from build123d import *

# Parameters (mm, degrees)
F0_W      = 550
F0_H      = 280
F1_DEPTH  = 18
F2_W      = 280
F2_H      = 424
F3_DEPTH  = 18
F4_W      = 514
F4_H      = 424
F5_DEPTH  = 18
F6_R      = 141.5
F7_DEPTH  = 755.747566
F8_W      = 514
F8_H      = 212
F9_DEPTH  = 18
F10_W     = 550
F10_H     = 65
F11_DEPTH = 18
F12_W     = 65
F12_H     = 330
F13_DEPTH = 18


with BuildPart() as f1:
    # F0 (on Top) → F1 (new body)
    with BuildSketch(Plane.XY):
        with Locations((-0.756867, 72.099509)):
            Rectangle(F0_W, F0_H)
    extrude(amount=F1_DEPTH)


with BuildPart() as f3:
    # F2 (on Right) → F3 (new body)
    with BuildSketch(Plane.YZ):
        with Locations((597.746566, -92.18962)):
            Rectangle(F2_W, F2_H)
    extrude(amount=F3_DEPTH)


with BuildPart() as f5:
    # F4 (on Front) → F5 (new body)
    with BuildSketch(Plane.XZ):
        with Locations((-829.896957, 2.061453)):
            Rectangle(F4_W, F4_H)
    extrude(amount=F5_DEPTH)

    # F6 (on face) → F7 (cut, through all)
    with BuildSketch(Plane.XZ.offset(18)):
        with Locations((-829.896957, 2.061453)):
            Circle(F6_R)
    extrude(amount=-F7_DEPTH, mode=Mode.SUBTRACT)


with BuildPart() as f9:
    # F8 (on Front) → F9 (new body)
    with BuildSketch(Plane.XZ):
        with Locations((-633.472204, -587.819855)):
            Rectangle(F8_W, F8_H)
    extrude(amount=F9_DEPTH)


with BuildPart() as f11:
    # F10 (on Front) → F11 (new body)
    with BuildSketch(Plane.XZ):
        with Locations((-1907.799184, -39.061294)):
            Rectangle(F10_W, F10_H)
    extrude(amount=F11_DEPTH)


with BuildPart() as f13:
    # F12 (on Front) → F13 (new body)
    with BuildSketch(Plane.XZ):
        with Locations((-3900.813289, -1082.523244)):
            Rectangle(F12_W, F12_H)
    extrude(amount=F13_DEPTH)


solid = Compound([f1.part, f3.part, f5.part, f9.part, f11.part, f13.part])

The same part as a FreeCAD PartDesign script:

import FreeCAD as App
import Part
import Sketcher

V = App.Vector

doc = App.newDocument("Part")
body = doc.addObject("PartDesign::Body", "Body")

sketch1 = body.newObject("Sketcher::SketchObject", "Sketch")
sketch1.AttachmentSupport = (doc.getObject("XY_Plane"), [""])
sketch1.MapMode = "FlatFace"
sketch1.addGeometry([
    Part.LineSegment(V(-276, 212, 0), V(-276, -68, 0)),
    Part.LineSegment(V(-276, -68, 0), V(274, -68, 0)),
    Part.LineSegment(V(274, -68, 0), V(274, 212, 0)),
    Part.LineSegment(V(274, 212, 0), V(-276, 212, 0)),
], False)
sketch1.addConstraint([
    Sketcher.Constraint("Coincident", 0, 2, 1, 1),
    Sketcher.Constraint("Coincident", 1, 2, 2, 1),
    Sketcher.Constraint("Coincident", 2, 2, 3, 1),
    Sketcher.Constraint("Coincident", 3, 2, 0, 1),
    Sketcher.Constraint("Vertical", 0),
    Sketcher.Constraint("Horizontal", 1),
    Sketcher.Constraint("Vertical", 2),
    Sketcher.Constraint("Horizontal", 3),
    Sketcher.Constraint("DistanceX", 1, 1, 1, 2, 550.0),
    Sketcher.Constraint("DistanceY", 0, 2, 0, 1, 280.0),
    Sketcher.Constraint("DistanceY", 0, 2, -1, 1, 67.900491),
    Sketcher.Constraint("DistanceX", 0, 2, -1, 1, 275.756867),
])
pad1 = body.newObject("PartDesign::Pad", "Pad")
pad1.Profile = sketch1
pad1.Length = 18
body2 = doc.addObject("PartDesign::Body", "Body001")

sketch2 = body2.newObject("Sketcher::SketchObject", "Sketch001")
sketch2.AttachmentSupport = (doc.getObject("YZ_Plane001"), [""])
sketch2.MapMode = "FlatFace"
sketch2.addGeometry([
    Part.LineSegment(V(458, 120, 0), V(458, -304, 0)),
    Part.LineSegment(V(458, -304, 0), V(738, -304, 0)),
    Part.LineSegment(V(738, -304, 0), V(738, 120, 0)),
    Part.LineSegment(V(738, 120, 0), V(458, 120, 0)),
], False)
sketch2.addConstraint([
    Sketcher.Constraint("Coincident", 0, 2, 1, 1),
    Sketcher.Constraint("Coincident", 1, 2, 2, 1),
    Sketcher.Constraint("Coincident", 2, 2, 3, 1),
    Sketcher.Constraint("Coincident", 3, 2, 0, 1),
    Sketcher.Constraint("Vertical", 0),
    Sketcher.Constraint("Horizontal", 1),
    Sketcher.Constraint("Vertical", 2),
    Sketcher.Constraint("Horizontal", 3),
    Sketcher.Constraint("DistanceX", 1, 1, 1, 2, 280.0),
    Sketcher.Constraint("DistanceY", 0, 2, 0, 1, 424.0),
    Sketcher.Constraint("DistanceY", 0, 2, -1, 1, 304.18962),
    Sketcher.Constraint("DistanceX", -1, 1, 0, 2, 457.746566),
])
pad2 = body2.newObject("PartDesign::Pad", "Pad001")
pad2.Profile = sketch2
pad2.Length = 18
body3 = doc.addObject("PartDesign::Body", "Body002")

sketch3 = body3.newObject("Sketcher::SketchObject", "Sketch002")
sketch3.AttachmentSupport = (doc.getObject("XZ_Plane002"), [""])
sketch3.MapMode = "FlatFace"
sketch3.addGeometry([
    Part.LineSegment(V(-1087, 214, 0), V(-1087, -210, 0)),
    Part.LineSegment(V(-1087, -210, 0), V(-573, -210, 0)),
    Part.LineSegment(V(-573, -210, 0), V(-573, 214, 0)),
    Part.LineSegment(V(-573, 214, 0), V(-1087, 214, 0)),
], False)
sketch3.addConstraint([
    Sketcher.Constraint("Coincident", 0, 2, 1, 1),
    Sketcher.Constraint("Coincident", 1, 2, 2, 1),
    Sketcher.Constraint("Coincident", 2, 2, 3, 1),
    Sketcher.Constraint("Coincident", 3, 2, 0, 1),
    Sketcher.Constraint("Vertical", 0),
    Sketcher.Constraint("Horizontal", 1),
    Sketcher.Constraint("Vertical", 2),
    Sketcher.Constraint("Horizontal", 3),
    Sketcher.Constraint("DistanceX", 1, 1, 1, 2, 514.0),
    Sketcher.Constraint("DistanceY", 0, 2, 0, 1, 424.0),
    Sketcher.Constraint("DistanceX", 0, 2, -1, 1, 1086.896957),
    Sketcher.Constraint("DistanceY", 0, 2, -1, 1, 209.938547),
])
pad3 = body3.newObject("PartDesign::Pad", "Pad002")
pad3.Profile = sketch3
pad3.Length = 18

sketch4 = body3.newObject("Sketcher::SketchObject", "Sketch003")
sketch4.AttachmentSupport = (doc.getObject("XZ_Plane002"), [""])
sketch4.MapMode = "FlatFace"
sketch4.AttachmentOffset = App.Placement(V(0, 0, 18), App.Rotation())
sketch4.addGeometry(Part.Circle(V(-830, 2, 0), V(0, 0, 1), 142), False)
sketch4.addConstraint([
    Sketcher.Constraint("Diameter", 0, 283.0),
    Sketcher.Constraint("DistanceX", 0, 3, -1, 1, 829.896957),
    Sketcher.Constraint("DistanceY", -1, 1, 0, 3, 2.061453),
])
pocket1 = body3.newObject("PartDesign::Pocket", "Pocket")
pocket1.Profile = sketch4
pocket1.Type = "ThroughAll"
body4 = doc.addObject("PartDesign::Body", "Body003")

sketch5 = body4.newObject("Sketcher::SketchObject", "Sketch004")
sketch5.AttachmentSupport = (doc.getObject("XZ_Plane003"), [""])
sketch5.MapMode = "FlatFace"
sketch5.addGeometry([
    Part.LineSegment(V(-890, -482, 0), V(-890, -694, 0)),
    Part.LineSegment(V(-890, -694, 0), V(-376, -694, 0)),
    Part.LineSegment(V(-376, -694, 0), V(-376, -482, 0)),
    Part.LineSegment(V(-376, -482, 0), V(-890, -482, 0)),
], False)
sketch5.addConstraint([
    Sketcher.Constraint("Coincident", 0, 2, 1, 1),
    Sketcher.Constraint("Coincident", 1, 2, 2, 1),
    Sketcher.Constraint("Coincident", 2, 2, 3, 1),
    Sketcher.Constraint("Coincident", 3, 2, 0, 1),
    Sketcher.Constraint("Vertical", 0),
    Sketcher.Constraint("Horizontal", 1),
    Sketcher.Constraint("Vertical", 2),
    Sketcher.Constraint("Horizontal", 3),
    Sketcher.Constraint("DistanceX", 1, 1, 1, 2, 514.0),
    Sketcher.Constraint("DistanceY", 0, 2, 0, 1, 212.0),
    Sketcher.Constraint("DistanceX", 0, 2, -1, 1, 890.472204),
    Sketcher.Constraint("DistanceY", 0, 2, -1, 1, 693.819855),
])
pad4 = body4.newObject("PartDesign::Pad", "Pad003")
pad4.Profile = sketch5
pad4.Length = 18
body5 = doc.addObject("PartDesign::Body", "Body004")

sketch6 = body5.newObject("Sketcher::SketchObject", "Sketch005")
sketch6.AttachmentSupport = (doc.getObject("XZ_Plane004"), [""])
sketch6.MapMode = "FlatFace"
sketch6.addGeometry([
    Part.LineSegment(V(-2183, -7, 0), V(-2183, -72, 0)),
    Part.LineSegment(V(-2183, -72, 0), V(-1633, -72, 0)),
    Part.LineSegment(V(-1633, -72, 0), V(-1633, -7, 0)),
    Part.LineSegment(V(-1633, -7, 0), V(-2183, -7, 0)),
], False)
sketch6.addConstraint([
    Sketcher.Constraint("Coincident", 0, 2, 1, 1),
    Sketcher.Constraint("Coincident", 1, 2, 2, 1),
    Sketcher.Constraint("Coincident", 2, 2, 3, 1),
    Sketcher.Constraint("Coincident", 3, 2, 0, 1),
    Sketcher.Constraint("Vertical", 0),
    Sketcher.Constraint("Horizontal", 1),
    Sketcher.Constraint("Vertical", 2),
    Sketcher.Constraint("Horizontal", 3),
    Sketcher.Constraint("DistanceX", 1, 1, 1, 2, 550.0),
    Sketcher.Constraint("DistanceY", 0, 2, 0, 1, 65.0),
    Sketcher.Constraint("DistanceX", 0, 2, -1, 1, 2182.799184),
    Sketcher.Constraint("DistanceY", 0, 2, -1, 1, 71.561294),
])
pad5 = body5.newObject("PartDesign::Pad", "Pad004")
pad5.Profile = sketch6
pad5.Length = 18
body6 = doc.addObject("PartDesign::Body", "Body005")

sketch7 = body6.newObject("Sketcher::SketchObject", "Sketch006")
sketch7.AttachmentSupport = (doc.getObject("XZ_Plane005"), [""])
sketch7.MapMode = "FlatFace"
sketch7.addGeometry([
    Part.LineSegment(V(-3933, -918, 0), V(-3933, -1248, 0)),
    Part.LineSegment(V(-3933, -1248, 0), V(-3868, -1248, 0)),
    Part.LineSegment(V(-3868, -1248, 0), V(-3868, -918, 0)),
    Part.LineSegment(V(-3868, -918, 0), V(-3933, -918, 0)),
], False)
sketch7.addConstraint([
    Sketcher.Constraint("Coincident", 0, 2, 1, 1),
    Sketcher.Constraint("Coincident", 1, 2, 2, 1),
    Sketcher.Constraint("Coincident", 2, 2, 3, 1),
    Sketcher.Constraint("Coincident", 3, 2, 0, 1),
    Sketcher.Constraint("Vertical", 0),
    Sketcher.Constraint("Horizontal", 1),
    Sketcher.Constraint("Vertical", 2),
    Sketcher.Constraint("Horizontal", 3),
    Sketcher.Constraint("DistanceX", 1, 1, 1, 2, 65.0),
    Sketcher.Constraint("DistanceY", 0, 2, 0, 1, 330.0),
    Sketcher.Constraint("DistanceX", 0, 2, -1, 1, 3933.313289),
    Sketcher.Constraint("DistanceY", 0, 2, -1, 1, 1247.523244),
])
pad6 = body6.newObject("PartDesign::Pad", "Pad005")
pad6.Profile = sketch7
pad6.Length = 18

doc.recompute()
